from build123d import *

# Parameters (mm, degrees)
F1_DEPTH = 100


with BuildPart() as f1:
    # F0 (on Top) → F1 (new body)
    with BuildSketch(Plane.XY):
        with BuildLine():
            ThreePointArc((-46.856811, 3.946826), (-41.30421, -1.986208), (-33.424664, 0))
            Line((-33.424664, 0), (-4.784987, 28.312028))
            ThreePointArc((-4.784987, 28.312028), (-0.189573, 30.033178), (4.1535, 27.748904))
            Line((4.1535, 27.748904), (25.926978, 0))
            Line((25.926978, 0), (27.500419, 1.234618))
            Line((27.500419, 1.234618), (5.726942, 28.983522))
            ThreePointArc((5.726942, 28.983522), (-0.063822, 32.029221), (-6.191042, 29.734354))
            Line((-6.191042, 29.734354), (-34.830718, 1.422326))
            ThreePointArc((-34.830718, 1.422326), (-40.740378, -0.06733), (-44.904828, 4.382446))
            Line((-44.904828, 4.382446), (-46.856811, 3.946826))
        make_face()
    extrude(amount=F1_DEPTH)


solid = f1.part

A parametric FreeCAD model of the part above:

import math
import FreeCAD as App
import Part
import Sketcher

V = App.Vector

doc = App.newDocument("Part")
body = doc.addObject("PartDesign::Body", "Body")

sketch1 = doc.addObject("Sketcher::SketchObject", "Sketch")
body.addObject(sketch1)
sketch1.AttachmentSupport = (doc.XY_Plane, [""])
sketch1.MapMode = "FlatFace"
sketch1.addGeometry(Part.ArcOfCircle(Part.Circle(V(-39.048881, 5.689305, 0), V(0, 0, 1), 8), math.radians(-167.419574), math.radians(-45.329624)), False)
sketch1.addGeometry(Part.LineSegment(V(-33.424664, 0, 0), V(-4.784987, 28.312028, 0)), False)
sketch1.addGeometry(Part.ArcOfCircle(Part.Circle(V(-0.566824, 24.04505, 0), V(0, 0, 1), 6), math.radians(38.119893), math.radians(134.670376)), False)
sketch1.addGeometry(Part.LineSegment(V(4.1535, 27.748904, 0), V(25.926978, 0, 0)), False)
sketch1.addGeometry(Part.LineSegment(V(25.926978, 0, 0), V(27.500419, 1.234618, 0)), False)
sketch1.addGeometry(Part.LineSegment(V(27.500419, 1.234618, 0), V(5.726942, 28.983522, 0)), False)
sketch1.addGeometry(Part.ArcOfCircle(Part.Circle(V(-0.566825, 24.045049, 0), V(0, 0, 1), 8.000001), math.radians(38.119892), math.radians(134.670378)), False)
sketch1.addGeometry(Part.LineSegment(V(-6.191042, 29.734354, 0), V(-34.830718, 1.422326, 0)), False)
sketch1.addGeometry(Part.ArcOfCircle(Part.Circle(V(-39.048881, 5.689304, 0), V(0, 0, 1), 6), math.radians(-167.419584), math.radians(-45.32962)), False)
sketch1.addGeometry(Part.LineSegment(V(-44.904828, 4.382446, 0), V(-46.856811, 3.946826, 0)), False)
sketch1.addConstraint(Sketcher.Constraint("Tangent", 0, 2, 1, 1))
sketch1.addConstraint(Sketcher.Constraint("Tangent", 1, 2, 2, 2))
sketch1.addConstraint(Sketcher.Constraint("Tangent", 2, 1, 3, 1))
sketch1.addConstraint(Sketcher.Constraint("Coincident", 3, 2, 4, 1))
sketch1.addConstraint(Sketcher.Constraint("Coincident", 4, 2, 5, 1))
sketch1.addConstraint(Sketcher.Constraint("Tangent", 5, 2, 6, 1))
sketch1.addConstraint(Sketcher.Constraint("Tangent", 6, 2, 7, 1))
sketch1.addConstraint(Sketcher.Constraint("Tangent", 7, 2, 8, 2))
sketch1.addConstraint(Sketcher.Constraint("Coincident", 8, 1, 9, 1))
sketch1.addConstraint(Sketcher.Constraint("Coincident", 9, 2, 0, 1))
sketch1.addConstraint(Sketcher.Constraint("Coincident", 6, 3, 2, 3))
sketch1.addConstraint(Sketcher.Constraint("Coincident", 8, 3, 0, 3))
sketch1.addConstraint(Sketcher.Constraint("Equal", 0, 6))
sketch1.addConstraint(Sketcher.Constraint("Equal", 2, 8))
sketch1.addConstraint(Sketcher.Constraint("PointOnObject", 0, 2, -1))
sketch1.addConstraint(Sketcher.Constraint("PointOnObject", 3, 2, -1))
sketch1.addConstraint(Sketcher.Constraint("Perpendicular", 3, 4))
sketch1.addConstraint(Sketcher.Constraint("Perpendicular", 4, 5))
sketch1.addConstraint(Sketcher.Constraint("Radius", 0, 8.0))
sketch1.addConstraint(Sketcher.Constraint("Radius", 2, 6.0))
sketch1.addConstraint(Sketcher.Constraint("DistanceX", -1, 1, 2, 1, 4.1535))
sketch1.addConstraint(Sketcher.Constraint("DistanceY", 0, 3, 2, 1, 22.059599))
sketch1.addConstraint(Sketcher.Constraint("DistanceY", 7, 2, 1, 2, 26.889702))
sketch1.addConstraint(Sketcher.Constraint("DistanceY", 7, 2, 9, 2, 2.5245))
sketch1.addConstraint(Sketcher.Constraint("DistanceX", 0, 3, -1, 1, 39.048881))
sketch1.addConstraint(Sketcher.Constraint("DistanceX", 8, 1, -1, 1, 44.904828))
pad1 = doc.addObject("PartDesign::Pad", "Pad")
body.addObject(pad1)
pad1.Profile = sketch1
pad1.Length = 100

doc.recompute()
